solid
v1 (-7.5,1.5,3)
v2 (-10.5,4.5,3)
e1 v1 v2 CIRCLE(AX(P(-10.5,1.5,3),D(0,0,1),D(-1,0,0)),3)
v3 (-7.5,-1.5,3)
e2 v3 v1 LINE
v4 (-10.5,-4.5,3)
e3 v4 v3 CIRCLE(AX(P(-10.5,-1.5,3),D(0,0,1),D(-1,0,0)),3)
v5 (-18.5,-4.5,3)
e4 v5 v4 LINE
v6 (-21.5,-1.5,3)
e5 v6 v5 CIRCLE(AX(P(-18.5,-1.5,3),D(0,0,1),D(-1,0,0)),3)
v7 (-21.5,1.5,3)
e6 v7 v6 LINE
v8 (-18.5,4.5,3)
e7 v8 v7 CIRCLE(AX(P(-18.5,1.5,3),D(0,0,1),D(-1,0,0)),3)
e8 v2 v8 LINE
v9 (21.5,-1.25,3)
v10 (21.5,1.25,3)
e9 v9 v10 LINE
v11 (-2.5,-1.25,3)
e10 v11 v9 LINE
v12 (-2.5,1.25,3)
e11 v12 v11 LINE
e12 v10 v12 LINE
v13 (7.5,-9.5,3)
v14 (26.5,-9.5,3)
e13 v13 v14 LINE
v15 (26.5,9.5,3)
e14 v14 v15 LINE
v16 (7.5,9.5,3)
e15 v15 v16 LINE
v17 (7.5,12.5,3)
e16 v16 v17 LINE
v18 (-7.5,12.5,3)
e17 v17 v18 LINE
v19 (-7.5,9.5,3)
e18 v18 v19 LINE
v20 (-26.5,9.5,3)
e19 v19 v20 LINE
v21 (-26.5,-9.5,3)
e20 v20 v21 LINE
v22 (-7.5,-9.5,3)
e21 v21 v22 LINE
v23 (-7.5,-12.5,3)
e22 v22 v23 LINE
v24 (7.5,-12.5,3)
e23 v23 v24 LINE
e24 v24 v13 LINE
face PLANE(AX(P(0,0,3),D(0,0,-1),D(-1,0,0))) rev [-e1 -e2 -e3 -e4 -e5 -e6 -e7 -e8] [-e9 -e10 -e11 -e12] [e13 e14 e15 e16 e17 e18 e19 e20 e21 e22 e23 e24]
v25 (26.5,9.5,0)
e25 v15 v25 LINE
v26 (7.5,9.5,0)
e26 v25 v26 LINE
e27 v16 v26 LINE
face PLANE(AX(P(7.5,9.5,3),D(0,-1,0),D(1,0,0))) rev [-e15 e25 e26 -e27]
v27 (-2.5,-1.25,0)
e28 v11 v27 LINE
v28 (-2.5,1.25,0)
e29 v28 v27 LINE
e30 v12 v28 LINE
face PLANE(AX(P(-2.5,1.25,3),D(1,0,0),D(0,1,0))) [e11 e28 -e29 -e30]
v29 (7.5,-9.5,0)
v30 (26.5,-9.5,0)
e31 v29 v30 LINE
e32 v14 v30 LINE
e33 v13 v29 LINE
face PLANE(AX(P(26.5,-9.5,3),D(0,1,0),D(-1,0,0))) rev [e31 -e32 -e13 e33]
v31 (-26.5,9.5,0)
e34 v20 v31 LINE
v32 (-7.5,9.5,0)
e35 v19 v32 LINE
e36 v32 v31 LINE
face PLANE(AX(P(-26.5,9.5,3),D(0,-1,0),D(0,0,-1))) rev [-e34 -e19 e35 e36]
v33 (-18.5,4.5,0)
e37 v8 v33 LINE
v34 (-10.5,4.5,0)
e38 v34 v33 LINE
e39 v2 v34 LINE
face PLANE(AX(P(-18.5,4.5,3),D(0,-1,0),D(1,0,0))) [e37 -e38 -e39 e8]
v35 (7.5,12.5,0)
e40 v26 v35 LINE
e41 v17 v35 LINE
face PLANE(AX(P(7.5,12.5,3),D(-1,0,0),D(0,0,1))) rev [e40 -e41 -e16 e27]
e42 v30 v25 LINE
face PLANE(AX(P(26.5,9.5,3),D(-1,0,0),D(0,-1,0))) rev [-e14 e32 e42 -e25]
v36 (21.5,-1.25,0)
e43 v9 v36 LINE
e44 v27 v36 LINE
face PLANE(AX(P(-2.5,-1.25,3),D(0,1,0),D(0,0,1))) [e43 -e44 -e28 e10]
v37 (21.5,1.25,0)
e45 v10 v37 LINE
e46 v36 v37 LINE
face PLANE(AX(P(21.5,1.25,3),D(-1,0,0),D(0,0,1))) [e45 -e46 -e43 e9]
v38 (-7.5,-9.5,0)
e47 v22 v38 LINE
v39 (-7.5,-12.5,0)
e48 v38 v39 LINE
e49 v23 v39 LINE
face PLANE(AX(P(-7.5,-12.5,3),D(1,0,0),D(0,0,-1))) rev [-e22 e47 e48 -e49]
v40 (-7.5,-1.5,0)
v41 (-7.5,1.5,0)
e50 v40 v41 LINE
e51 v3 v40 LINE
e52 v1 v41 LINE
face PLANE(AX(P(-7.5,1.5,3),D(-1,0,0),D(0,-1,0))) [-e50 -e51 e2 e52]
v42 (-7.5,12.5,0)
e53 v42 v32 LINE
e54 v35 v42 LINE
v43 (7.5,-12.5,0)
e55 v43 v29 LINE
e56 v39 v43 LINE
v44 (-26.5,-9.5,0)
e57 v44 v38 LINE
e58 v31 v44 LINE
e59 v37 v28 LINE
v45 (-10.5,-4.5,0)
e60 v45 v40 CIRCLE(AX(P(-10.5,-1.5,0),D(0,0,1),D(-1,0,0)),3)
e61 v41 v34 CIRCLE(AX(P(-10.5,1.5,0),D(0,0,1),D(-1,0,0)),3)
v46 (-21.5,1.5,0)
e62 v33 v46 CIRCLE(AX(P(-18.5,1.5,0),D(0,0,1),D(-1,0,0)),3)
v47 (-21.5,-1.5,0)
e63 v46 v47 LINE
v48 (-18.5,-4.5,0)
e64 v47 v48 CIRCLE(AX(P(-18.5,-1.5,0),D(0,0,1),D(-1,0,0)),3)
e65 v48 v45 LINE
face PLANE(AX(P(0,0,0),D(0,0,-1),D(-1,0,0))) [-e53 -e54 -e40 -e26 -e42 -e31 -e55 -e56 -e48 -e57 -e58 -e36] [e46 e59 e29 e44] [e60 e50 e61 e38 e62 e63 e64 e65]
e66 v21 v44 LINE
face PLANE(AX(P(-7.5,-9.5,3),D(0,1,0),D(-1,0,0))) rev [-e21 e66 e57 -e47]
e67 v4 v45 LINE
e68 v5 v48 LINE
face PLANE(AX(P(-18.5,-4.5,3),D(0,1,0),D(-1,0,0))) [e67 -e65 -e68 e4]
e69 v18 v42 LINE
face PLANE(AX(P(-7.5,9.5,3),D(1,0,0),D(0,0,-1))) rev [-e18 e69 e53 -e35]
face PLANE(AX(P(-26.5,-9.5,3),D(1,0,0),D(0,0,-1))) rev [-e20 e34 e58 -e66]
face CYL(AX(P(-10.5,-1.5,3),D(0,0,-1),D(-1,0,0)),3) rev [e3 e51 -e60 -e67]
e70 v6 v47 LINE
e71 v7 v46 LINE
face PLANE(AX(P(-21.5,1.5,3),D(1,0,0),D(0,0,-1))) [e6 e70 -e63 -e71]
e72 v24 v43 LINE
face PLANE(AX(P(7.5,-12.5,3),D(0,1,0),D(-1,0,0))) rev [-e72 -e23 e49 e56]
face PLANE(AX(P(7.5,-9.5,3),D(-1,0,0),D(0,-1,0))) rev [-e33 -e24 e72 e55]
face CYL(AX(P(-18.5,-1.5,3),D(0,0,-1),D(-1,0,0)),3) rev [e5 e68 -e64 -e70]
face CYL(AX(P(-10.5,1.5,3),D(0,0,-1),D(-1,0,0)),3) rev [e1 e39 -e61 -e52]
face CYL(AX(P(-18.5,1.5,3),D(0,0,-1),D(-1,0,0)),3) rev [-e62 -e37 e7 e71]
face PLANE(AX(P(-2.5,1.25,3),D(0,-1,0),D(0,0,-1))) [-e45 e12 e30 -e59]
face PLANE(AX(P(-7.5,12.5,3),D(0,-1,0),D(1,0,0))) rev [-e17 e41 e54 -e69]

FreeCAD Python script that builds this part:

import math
import FreeCAD as App
import Part
import Sketcher


def add_polygon(sketch, points):
    """Adds a closed chain of lines whose ends are joined by coincident constraints."""
    first, n = sketch.GeometryCount, len(points)
    for a, b in zip(points, points[1:] + points[:1]):
        sketch.addGeometry(Part.LineSegment(App.Vector(*a, 0), App.Vector(*b, 0)), False)
    for i in range(n):
        sketch.addConstraint(Sketcher.Constraint("Coincident", first + i, 2, first + (i + 1) % n, 1))

doc = App.newDocument("Part")
params = doc.addObject("Spreadsheet::Sheet", "Params")
for row, (alias, value) in enumerate([
    ("sketch1_radius", "3 mm"),
    ("sketch1_width", "19 mm"),
    ("sketch1_width2", "15 mm"),
    ("sketch1_width3", "24 mm"),
    ("sketch1_width4", "8 mm"),
    ("pad1_length", "3 mm"),
], start=1):
    params.set(f"A{row}", alias)
    params.set(f"B{row}", "=" + value)
    params.setAlias(f"B{row}", alias)

body = doc.addObject("PartDesign::Body", "Body")

# Sketch on XY plane
sketch1 = body.newObject("Sketcher::SketchObject", "Sketch")
sketch1.AttachmentSupport = (doc.getObject("XY_Plane"), [""])
sketch1.MapMode = "FlatFace"
add_polygon(sketch1, [(-26.5, 9.5), (-26.5, -9.5), (-7.5, -9.5), (-7.5, -12.5), (7.5, -12.5), (7.5, -9.5), (26.5, -9.5), (26.5, 9.5), (7.5, 9.5), (7.5, 12.5), (-7.5, 12.5), (-7.5, 9.5)])  # lines 0-11
add_polygon(sketch1, [(-2.5, -1.2), (-2.5, 1.2), (21.5, 1.2), (21.5, -1.2)])  # lines 12-15
sketch1.addGeometry(Part.LineSegment(App.Vector(-18.5, 4.5, 0), App.Vector(-10.5, 4.5, 0)), False)  # 16
sketch1.addGeometry(Part.ArcOfCircle(Part.Circle(App.Vector(-10.5, 1.5, 0), App.Vector(0, 0, 1), 3), math.radians(0), math.radians(90)), False)  # 17
sketch1.addGeometry(Part.LineSegment(App.Vector(-7.5, 1.5, 0), App.Vector(-7.5, -1.5, 0)), False)  # 18
sketch1.addGeometry(Part.ArcOfCircle(Part.Circle(App.Vector(-10.5, -1.5, 0), App.Vector(0, 0, 1), 3), math.radians(-90), math.radians(0)), False)  # 19
sketch1.addGeometry(Part.LineSegment(App.Vector(-10.5, -4.5, 0), App.Vector(-18.5, -4.5, 0)), False)  # 20
sketch1.addGeometry(Part.ArcOfCircle(Part.Circle(App.Vector(-18.5, -1.5, 0), App.Vector(0, 0, 1), 3), math.radians(180), math.radians(270)), False)  # 21
sketch1.addGeometry(Part.LineSegment(App.Vector(-21.5, -1.5, 0), App.Vector(-21.5, 1.5, 0)), False)  # 22
sketch1.addGeometry(Part.ArcOfCircle(Part.Circle(App.Vector(-18.5, 1.5, 0), App.Vector(0, 0, 1), 3), math.radians(90), math.radians(180)), False)  # 23
sketch1.addConstraint([
    Sketcher.Constraint("Tangent", 16, 2, 17, 2),
    Sketcher.Constraint("Tangent", 17, 1, 18, 1),
    Sketcher.Constraint("Tangent", 18, 2, 19, 2),
    Sketcher.Constraint("Tangent", 19, 1, 20, 1),
    Sketcher.Constraint("Tangent", 20, 2, 21, 2),
    Sketcher.Constraint("Tangent", 21, 1, 22, 1),
    Sketcher.Constraint("Tangent", 22, 2, 23, 2),
    Sketcher.Constraint("Tangent", 23, 1, 16, 1),
    Sketcher.Constraint("Vertical", 0),
    Sketcher.Constraint("Horizontal", 1),
    Sketcher.Constraint("Vertical", 2),
    Sketcher.Constraint("Horizontal", 3),
    Sketcher.Constraint("Vertical", 4),
    Sketcher.Constraint("Horizontal", 5),
    Sketcher.Constraint("Vertical", 6),
    Sketcher.Constraint("Horizontal", 7),
    Sketcher.Constraint("Vertical", 8),
    Sketcher.Constraint("Horizontal", 9),
    Sketcher.Constraint("Vertical", 10),
    Sketcher.Constraint("Horizontal", 11),
    Sketcher.Constraint("Vertical", 12),
    Sketcher.Constraint("Horizontal", 13),
    Sketcher.Constraint("Vertical", 14),
    Sketcher.Constraint("Horizontal", 15),
    Sketcher.Constraint("Horizontal", 16),
    Sketcher.Constraint("Vertical", 18),
    Sketcher.Constraint("Horizontal", 20),
    Sketcher.Constraint("Vertical", 22),
    Sketcher.Constraint("Equal", 17, 19),
    Sketcher.Constraint("Equal", 19, 21),
    Sketcher.Constraint("Equal", 21, 23),
    Sketcher.Constraint("Symmetric", 0, 2, 6, 2, -1, 1),
    Sketcher.Constraint("Symmetric", 2, 2, 8, 2, -1, 1),
    Sketcher.Constraint("Symmetric", 4, 2, 10, 2, -1, 1),
    Sketcher.Constraint("Symmetric", 1, 2, 4, 2, -2),
    Sketcher.Constraint("Vertical", 10, 2, 17, 1),
    Sketcher.Constraint("Equal", 11, 0),
    Sketcher.Constraint("Equal", 10, 18),
    Sketcher.Constraint("Radius", 17, 3.0),
    Sketcher.Constraint("DistanceX", 1, 1, 1, 2, 19.0),
    Sketcher.Constraint("DistanceX", 3, 1, 3, 2, 15.0),
    Sketcher.Constraint("DistanceX", 13, 1, 13, 2, 24.0),
    Sketcher.Constraint("DistanceX", 16, 1, 16, 2, 8.0),
    Sketcher.Constraint("DistanceY", 2, 2, 2, 1, 3.0),
    Sketcher.Constraint("DistanceY", 12, 1, 12, 2, 2.5),
    Sketcher.Constraint("DistanceY", 0, 2, 21, 3, 8.0),
    Sketcher.Constraint("DistanceX", 17, 3, 12, 2, 8.0),
    Sketcher.Constraint("DistanceY", -1, 1, 12, 2, 1.25),
])
sketch1.setExpression("Constraints[54]", "Params.sketch1_radius")
sketch1.setExpression("Constraints[55]", "Params.sketch1_width")
sketch1.setExpression("Constraints[56]", "Params.sketch1_width2")
sketch1.setExpression("Constraints[57]", "Params.sketch1_width3")
sketch1.setExpression("Constraints[58]", "Params.sketch1_width4")
pad1 = body.newObject("PartDesign::Pad", "Pad")
pad1.Profile = sketch1
pad1.setExpression("Length", "Params.pad1_length")

doc.recompute()
